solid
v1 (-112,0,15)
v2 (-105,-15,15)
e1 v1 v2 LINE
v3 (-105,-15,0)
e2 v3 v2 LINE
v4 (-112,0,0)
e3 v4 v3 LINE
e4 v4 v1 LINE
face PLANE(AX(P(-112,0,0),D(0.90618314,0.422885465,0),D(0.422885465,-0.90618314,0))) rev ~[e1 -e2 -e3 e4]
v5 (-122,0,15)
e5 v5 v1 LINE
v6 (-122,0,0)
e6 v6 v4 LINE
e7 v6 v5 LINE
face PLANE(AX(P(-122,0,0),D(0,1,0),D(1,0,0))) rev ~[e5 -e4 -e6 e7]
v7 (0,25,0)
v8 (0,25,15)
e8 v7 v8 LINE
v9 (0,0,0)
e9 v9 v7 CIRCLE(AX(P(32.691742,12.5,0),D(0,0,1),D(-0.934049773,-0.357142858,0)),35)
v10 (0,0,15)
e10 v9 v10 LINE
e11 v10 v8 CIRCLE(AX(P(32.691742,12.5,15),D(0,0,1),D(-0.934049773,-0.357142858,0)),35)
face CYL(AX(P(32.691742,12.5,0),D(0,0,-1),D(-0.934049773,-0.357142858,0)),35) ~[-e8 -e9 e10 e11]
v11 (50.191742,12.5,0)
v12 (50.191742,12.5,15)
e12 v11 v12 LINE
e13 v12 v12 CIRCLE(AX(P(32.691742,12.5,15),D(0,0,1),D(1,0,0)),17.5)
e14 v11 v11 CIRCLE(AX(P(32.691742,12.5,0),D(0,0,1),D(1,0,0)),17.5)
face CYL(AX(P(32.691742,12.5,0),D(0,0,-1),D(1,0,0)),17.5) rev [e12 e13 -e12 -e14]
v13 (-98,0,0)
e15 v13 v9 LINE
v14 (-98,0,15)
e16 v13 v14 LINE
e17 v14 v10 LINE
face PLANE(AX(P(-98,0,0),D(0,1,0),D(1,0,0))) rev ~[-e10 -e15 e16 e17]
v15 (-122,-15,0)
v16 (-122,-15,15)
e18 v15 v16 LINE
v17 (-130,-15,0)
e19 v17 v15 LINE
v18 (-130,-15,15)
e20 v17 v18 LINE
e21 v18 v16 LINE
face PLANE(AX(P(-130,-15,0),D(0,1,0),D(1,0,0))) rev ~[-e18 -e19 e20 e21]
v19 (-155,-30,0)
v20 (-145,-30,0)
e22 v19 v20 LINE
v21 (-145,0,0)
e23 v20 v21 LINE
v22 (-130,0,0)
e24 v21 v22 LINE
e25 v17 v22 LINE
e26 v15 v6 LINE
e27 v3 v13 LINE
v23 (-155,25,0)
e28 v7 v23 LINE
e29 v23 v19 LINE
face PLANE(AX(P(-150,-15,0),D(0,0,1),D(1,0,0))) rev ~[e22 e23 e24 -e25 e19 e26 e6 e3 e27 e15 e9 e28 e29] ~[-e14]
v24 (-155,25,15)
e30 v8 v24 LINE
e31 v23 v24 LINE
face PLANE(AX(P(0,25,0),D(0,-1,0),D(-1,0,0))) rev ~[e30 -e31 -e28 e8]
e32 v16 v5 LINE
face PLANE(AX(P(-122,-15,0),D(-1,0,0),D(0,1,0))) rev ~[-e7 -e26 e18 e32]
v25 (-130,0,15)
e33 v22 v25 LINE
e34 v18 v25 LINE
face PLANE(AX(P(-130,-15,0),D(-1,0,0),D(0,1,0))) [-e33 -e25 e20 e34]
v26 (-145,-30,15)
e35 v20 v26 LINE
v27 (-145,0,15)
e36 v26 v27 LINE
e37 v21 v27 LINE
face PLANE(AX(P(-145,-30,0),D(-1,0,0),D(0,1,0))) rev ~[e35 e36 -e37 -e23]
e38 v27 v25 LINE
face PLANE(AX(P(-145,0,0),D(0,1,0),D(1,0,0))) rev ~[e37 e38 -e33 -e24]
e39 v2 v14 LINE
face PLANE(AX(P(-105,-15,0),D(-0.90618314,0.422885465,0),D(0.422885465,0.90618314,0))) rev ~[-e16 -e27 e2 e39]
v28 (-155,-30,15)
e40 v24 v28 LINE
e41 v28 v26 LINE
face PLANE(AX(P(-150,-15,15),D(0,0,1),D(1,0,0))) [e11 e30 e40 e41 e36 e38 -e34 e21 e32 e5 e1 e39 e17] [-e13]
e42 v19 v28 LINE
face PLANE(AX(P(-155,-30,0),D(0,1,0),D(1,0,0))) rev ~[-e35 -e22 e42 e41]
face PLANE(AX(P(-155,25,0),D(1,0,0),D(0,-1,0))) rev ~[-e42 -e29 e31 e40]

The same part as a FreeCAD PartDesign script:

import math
import FreeCAD as App
import Part
import Sketcher
from FreeCAD import Vector

doc = App.newDocument("Part")
body = doc.addObject("PartDesign::Body", "Body")

sketch1 = doc.addObject("Sketcher::SketchObject", "Sketch")
body.addObject(sketch1)
sketch1.AttachmentSupport = (doc.XY_Plane, [""])
sketch1.MapMode = "FlatFace"
sketch1.addGeometry(Part.LineSegment(Vector(-155, -30, 0), Vector(-145, -30, 0)), False)
sketch1.addGeometry(Part.LineSegment(Vector(-145, -30, 0), Vector(-145, 0, 0)), False)
sketch1.addGeometry(Part.LineSegment(Vector(-145, 0, 0), Vector(-130, 0, 0)), False)
sketch1.addGeometry(Part.LineSegment(Vector(-130, 0, 0), Vector(-130, -15, 0)), False)
sketch1.addGeometry(Part.LineSegment(Vector(-130, -15, 0), Vector(-122, -15, 0)), False)
sketch1.addGeometry(Part.LineSegment(Vector(-122, -15, 0), Vector(-122, 0, 0)), False)
sketch1.addGeometry(Part.LineSegment(Vector(-122, 0, 0), Vector(-112, 0, 0)), False)
sketch1.addGeometry(Part.LineSegment(Vector(-112, 0, 0), Vector(-105, -15, 0)), False)
sketch1.addGeometry(Part.LineSegment(Vector(-105, -15, 0), Vector(-98, 0, 0)), False)
sketch1.addGeometry(Part.LineSegment(Vector(-98, 0, 0), Vector(0, 0, 0)), False)
sketch1.addGeometry(Part.ArcOfCircle(Part.Circle(Vector(33, 12, 0), Vector(0, 0, 1), 35), math.radians(-159), math.radians(159)), False)
sketch1.addGeometry(Part.LineSegment(Vector(0, 25, 0), Vector(-155, 25, 0)), False)
sketch1.addGeometry(Part.LineSegment(Vector(-155, 25, 0), Vector(-155, -30, 0)), False)
sketch1.addGeometry(Part.Circle(Vector(33, 12, 0), Vector(0, 0, 1), 18), False)
sketch1.addConstraint(Sketcher.Constraint("Coincident", 0, 2, 1, 1))
sketch1.addConstraint(Sketcher.Constraint("Coincident", 1, 2, 2, 1))
sketch1.addConstraint(Sketcher.Constraint("Coincident", 2, 2, 3, 1))
sketch1.addConstraint(Sketcher.Constraint("Coincident", 3, 2, 4, 1))
sketch1.addConstraint(Sketcher.Constraint("Coincident", 4, 2, 5, 1))
sketch1.addConstraint(Sketcher.Constraint("Coincident", 5, 2, 6, 1))
sketch1.addConstraint(Sketcher.Constraint("Coincident", 6, 2, 7, 1))
sketch1.addConstraint(Sketcher.Constraint("Coincident", 7, 2, 8, 1))
sketch1.addConstraint(Sketcher.Constraint("Coincident", 8, 2, 9, 1))
sketch1.addConstraint(Sketcher.Constraint("Coincident", 9, 2, 10, 1))
sketch1.addConstraint(Sketcher.Constraint("Coincident", 10, 2, 11, 1))
sketch1.addConstraint(Sketcher.Constraint("Coincident", 11, 2, 12, 1))
sketch1.addConstraint(Sketcher.Constraint("Coincident", 12, 2, 0, 1))
sketch1.addConstraint(Sketcher.Constraint("Horizontal", 0))
sketch1.addConstraint(Sketcher.Constraint("Vertical", 1))
sketch1.addConstraint(Sketcher.Constraint("Horizontal", 2))
sketch1.addConstraint(Sketcher.Constraint("Vertical", 3))
sketch1.addConstraint(Sketcher.Constraint("Horizontal", 4))
sketch1.addConstraint(Sketcher.Constraint("Vertical", 5))
sketch1.addConstraint(Sketcher.Constraint("Horizontal", 6))
sketch1.addConstraint(Sketcher.Constraint("Horizontal", 9))
sketch1.addConstraint(Sketcher.Constraint("Horizontal", 11))
sketch1.addConstraint(Sketcher.Constraint("Vertical", 12))
sketch1.addConstraint(Sketcher.Constraint("Coincident", 9, 2, -1, 1))
sketch1.addConstraint(Sketcher.Constraint("Coincident", 13, 3, 10, 3))
sketch1.addConstraint(Sketcher.Constraint("PointOnObject", 1, 2, -1))
sketch1.addConstraint(Sketcher.Constraint("PointOnObject", 5, 2, -1))
sketch1.addConstraint(Sketcher.Constraint("PointOnObject", 10, 2, -2))
sketch1.addConstraint(Sketcher.Constraint("Horizontal", 4, 2, 7, 2))
sketch1.addConstraint(Sketcher.Constraint("Equal", 0, 6))
sketch1.addConstraint(Sketcher.Constraint("Equal", 2, 3))
sketch1.addConstraint(Sketcher.Constraint("Equal", 7, 8))
sketch1.addConstraint(Sketcher.Constraint("Diameter", 13, 35.0))
sketch1.addConstraint(Sketcher.Constraint("Radius", 10, 35.0))
sketch1.addConstraint(Sketcher.Constraint("DistanceX", 0, 1, 0, 2, 10.0))
sketch1.addConstraint(Sketcher.Constraint("DistanceX", 2, 1, 2, 2, 15.0))
sketch1.addConstraint(Sketcher.Constraint("DistanceX", 4, 1, 4, 2, 8.0))
sketch1.addConstraint(Sketcher.Constraint("DistanceX", 9, 1, 9, 2, 98.0))
sketch1.addConstraint(Sketcher.Constraint("DistanceX", 11, 2, 11, 1, 155.0))
sketch1.addConstraint(Sketcher.Constraint("DistanceY", 1, 1, 1, 2, 30.0))
sketch1.addConstraint(Sketcher.Constraint("DistanceY", 12, 2, 12, 1, 55.0))
pad1 = doc.addObject("PartDesign::Pad", "Pad")
body.addObject(pad1)
pad1.Profile = sketch1
pad1.Length = 15

doc.recompute()
